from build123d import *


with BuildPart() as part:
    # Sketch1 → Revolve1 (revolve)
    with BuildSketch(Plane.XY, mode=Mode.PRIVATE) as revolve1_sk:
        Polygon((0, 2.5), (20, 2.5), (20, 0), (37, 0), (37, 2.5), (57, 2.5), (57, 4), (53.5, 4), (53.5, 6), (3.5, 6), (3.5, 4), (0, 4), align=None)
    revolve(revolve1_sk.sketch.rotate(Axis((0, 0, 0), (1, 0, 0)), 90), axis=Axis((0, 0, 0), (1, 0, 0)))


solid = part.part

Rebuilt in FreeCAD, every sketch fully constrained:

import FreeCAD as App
import Part
import Sketcher


def add_polygon(sketch, points):
    """Adds a closed chain of lines whose ends are joined by coincident constraints."""
    first, n = sketch.GeometryCount, len(points)
    for a, b in zip(points, points[1:] + points[:1]):
        sketch.addGeometry(Part.LineSegment(App.Vector(*a, 0), App.Vector(*b, 0)), False)
    for i in range(n):
        sketch.addConstraint(Sketcher.Constraint("Coincident", first + i, 2, first + (i + 1) % n, 1))

doc = App.newDocument("Part")
body = doc.addObject("PartDesign::Body", "Body")

# Sketch on XY plane
sketch1 = body.newObject("Sketcher::SketchObject", "Sketch")
sketch1.AttachmentSupport = (doc.getObject("XY_Plane"), [""])
sketch1.MapMode = "FlatFace"
add_polygon(sketch1, [(0, 2.5), (20, 2.5), (20, 0), (37, 0), (37, 2.5), (57, 2.5), (57, 4), (53.5, 4), (53.5, 6), (3.5, 6), (3.5, 4), (0, 4)])  # lines 0-11
sketch1.addConstraint([
    Sketcher.Constraint("Horizontal", 0),
    Sketcher.Constraint("Vertical", 1),
    Sketcher.Constraint("Horizontal", 2),
    Sketcher.Constraint("Vertical", 3),
    Sketcher.Constraint("Horizontal", 4),
    Sketcher.Constraint("Vertical", 5),
    Sketcher.Constraint("Horizontal", 6),
    Sketcher.Constraint("Vertical", 7),
    Sketcher.Constraint("Horizontal", 8),
    Sketcher.Constraint("Vertical", 9),
    Sketcher.Constraint("Horizontal", 10),
    Sketcher.Constraint("Vertical", 11),
    Sketcher.Constraint("PointOnObject", 1, 2, -1),
    Sketcher.Constraint("PointOnObject", 10, 2, -2),
    Sketcher.Constraint("Horizontal", 0, 2, 3, 2),
    Sketcher.Constraint("Horizontal", 6, 2, 9, 2),
    Sketcher.Constraint("Equal", 0, 4),
    Sketcher.Constraint("Equal", 6, 10),
    Sketcher.Constraint("DistanceX", 0, 1, 0, 2, 20.0),
    Sketcher.Constraint("DistanceX", 2, 1, 2, 2, 17.0),
    Sketcher.Constraint("DistanceX", 8, 2, 8, 1, 50.0),
    Sketcher.Constraint("DistanceY", 7, 1, 7, 2, 2.0),
    Sketcher.Constraint("DistanceY", 1, 2, 1, 1, 2.5),
    Sketcher.Constraint("DistanceY", 5, 1, 5, 2, 1.5),
])
revolution = body.newObject("PartDesign::Revolution", "Revolution")
revolution.Profile = sketch1
revolution.ReferenceAxis = (sketch1, ["H_Axis"])
revolution.Angle = 360

doc.recompute()
